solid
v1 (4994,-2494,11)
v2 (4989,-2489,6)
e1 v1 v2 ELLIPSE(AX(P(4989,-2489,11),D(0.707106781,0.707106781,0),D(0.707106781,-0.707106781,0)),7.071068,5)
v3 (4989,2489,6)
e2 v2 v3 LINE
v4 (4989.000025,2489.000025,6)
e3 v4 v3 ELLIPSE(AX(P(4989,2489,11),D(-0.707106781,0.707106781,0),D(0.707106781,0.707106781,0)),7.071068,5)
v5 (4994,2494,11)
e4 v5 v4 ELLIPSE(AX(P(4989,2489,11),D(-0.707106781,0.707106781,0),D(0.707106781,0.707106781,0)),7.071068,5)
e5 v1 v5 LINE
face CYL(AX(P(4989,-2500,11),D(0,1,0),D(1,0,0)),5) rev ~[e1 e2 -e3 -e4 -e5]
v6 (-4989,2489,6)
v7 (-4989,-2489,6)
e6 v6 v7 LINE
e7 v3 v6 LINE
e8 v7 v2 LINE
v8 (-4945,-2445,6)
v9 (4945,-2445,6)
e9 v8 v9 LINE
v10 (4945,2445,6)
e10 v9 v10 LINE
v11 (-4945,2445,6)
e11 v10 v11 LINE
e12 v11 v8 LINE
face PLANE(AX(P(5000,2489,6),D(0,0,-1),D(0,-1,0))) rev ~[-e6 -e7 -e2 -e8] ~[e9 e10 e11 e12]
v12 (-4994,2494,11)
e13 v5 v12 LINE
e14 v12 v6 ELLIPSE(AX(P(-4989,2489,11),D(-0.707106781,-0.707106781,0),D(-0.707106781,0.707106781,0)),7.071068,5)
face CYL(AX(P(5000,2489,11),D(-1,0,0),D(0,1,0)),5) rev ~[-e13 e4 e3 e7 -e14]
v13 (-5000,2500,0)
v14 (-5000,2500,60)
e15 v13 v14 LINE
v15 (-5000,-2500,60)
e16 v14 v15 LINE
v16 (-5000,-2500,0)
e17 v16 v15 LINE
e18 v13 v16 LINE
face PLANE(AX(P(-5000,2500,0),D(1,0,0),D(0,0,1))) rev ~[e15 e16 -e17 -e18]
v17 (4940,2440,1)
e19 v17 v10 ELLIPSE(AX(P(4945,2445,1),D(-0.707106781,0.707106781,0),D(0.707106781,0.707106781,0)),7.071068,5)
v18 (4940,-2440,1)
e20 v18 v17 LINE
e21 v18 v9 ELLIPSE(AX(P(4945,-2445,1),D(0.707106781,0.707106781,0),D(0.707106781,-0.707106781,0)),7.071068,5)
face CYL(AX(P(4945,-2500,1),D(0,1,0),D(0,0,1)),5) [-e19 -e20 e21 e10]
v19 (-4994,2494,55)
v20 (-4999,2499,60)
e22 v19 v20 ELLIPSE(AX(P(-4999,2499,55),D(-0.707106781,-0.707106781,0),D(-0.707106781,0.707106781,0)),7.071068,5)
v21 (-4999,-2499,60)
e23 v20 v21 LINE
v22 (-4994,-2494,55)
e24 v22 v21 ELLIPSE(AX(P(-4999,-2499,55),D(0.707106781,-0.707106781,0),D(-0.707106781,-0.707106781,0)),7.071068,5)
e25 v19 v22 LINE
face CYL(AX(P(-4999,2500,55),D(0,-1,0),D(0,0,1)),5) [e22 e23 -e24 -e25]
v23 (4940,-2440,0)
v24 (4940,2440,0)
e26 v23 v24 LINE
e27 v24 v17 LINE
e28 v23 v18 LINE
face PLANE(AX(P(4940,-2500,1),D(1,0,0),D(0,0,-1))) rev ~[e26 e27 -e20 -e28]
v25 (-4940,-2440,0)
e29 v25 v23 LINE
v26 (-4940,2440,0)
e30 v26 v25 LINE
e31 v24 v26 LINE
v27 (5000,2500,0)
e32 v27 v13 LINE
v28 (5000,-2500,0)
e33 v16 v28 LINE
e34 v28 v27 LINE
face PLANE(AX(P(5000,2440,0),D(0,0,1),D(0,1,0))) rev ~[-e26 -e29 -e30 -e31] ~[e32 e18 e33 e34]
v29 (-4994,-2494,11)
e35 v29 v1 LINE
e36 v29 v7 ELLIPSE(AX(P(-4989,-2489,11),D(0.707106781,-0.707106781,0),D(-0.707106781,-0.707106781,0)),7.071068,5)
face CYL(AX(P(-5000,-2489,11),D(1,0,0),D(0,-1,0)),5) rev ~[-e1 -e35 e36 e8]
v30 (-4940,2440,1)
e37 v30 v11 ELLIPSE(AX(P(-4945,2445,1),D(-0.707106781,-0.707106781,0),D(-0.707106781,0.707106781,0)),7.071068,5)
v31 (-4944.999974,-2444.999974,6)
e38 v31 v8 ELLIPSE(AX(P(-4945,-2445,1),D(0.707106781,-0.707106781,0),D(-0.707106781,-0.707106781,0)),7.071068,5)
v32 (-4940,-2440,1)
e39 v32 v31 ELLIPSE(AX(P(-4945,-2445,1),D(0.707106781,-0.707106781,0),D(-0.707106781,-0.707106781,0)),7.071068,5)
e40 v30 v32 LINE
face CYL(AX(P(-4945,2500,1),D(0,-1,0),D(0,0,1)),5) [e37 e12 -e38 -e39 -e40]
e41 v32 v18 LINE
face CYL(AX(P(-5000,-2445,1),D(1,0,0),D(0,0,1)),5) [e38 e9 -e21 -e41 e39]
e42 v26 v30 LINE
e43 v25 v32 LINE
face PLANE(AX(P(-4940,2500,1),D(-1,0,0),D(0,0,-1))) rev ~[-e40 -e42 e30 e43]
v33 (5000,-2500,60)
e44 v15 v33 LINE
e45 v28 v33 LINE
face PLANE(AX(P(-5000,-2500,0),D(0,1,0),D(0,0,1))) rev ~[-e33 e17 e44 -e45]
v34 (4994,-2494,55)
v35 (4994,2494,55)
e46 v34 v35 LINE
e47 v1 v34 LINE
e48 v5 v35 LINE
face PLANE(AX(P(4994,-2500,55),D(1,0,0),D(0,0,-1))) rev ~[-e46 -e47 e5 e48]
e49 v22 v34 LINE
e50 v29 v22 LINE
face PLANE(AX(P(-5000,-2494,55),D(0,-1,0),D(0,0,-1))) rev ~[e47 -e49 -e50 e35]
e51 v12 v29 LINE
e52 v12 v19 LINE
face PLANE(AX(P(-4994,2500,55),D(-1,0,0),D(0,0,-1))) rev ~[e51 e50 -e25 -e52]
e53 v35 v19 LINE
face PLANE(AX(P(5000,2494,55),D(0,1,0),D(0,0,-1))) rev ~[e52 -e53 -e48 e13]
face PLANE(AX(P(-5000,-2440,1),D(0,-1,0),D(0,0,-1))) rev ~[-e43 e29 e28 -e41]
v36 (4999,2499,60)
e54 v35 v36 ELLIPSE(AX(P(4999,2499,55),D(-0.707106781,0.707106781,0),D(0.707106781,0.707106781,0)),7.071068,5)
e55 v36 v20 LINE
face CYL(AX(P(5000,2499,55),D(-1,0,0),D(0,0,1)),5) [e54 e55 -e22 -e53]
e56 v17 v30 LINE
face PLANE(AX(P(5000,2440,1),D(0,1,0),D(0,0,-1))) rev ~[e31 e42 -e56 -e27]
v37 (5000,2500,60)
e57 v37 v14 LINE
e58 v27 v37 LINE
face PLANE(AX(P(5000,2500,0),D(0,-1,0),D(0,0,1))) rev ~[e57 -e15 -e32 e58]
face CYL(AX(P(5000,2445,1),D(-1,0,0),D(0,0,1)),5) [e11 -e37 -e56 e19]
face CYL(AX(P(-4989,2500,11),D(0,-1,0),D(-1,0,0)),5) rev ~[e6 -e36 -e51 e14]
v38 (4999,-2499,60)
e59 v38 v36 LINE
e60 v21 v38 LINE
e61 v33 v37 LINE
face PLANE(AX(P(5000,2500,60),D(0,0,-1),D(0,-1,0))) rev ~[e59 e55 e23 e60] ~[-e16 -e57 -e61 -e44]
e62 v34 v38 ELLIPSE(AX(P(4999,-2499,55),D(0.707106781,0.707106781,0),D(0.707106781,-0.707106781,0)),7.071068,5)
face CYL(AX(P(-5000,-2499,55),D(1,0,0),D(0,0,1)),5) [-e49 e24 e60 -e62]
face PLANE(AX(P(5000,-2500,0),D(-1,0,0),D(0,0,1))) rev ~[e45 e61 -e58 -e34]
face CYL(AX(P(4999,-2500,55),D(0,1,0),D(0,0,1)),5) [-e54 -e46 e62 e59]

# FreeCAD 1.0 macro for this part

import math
import FreeCAD as App
import Part
import Sketcher
from FreeCAD import Vector
Q = App.Units.Quantity

doc = App.newDocument("Part")
params = doc.addObject("Spreadsheet::Sheet", "Params")
for row, (alias, value) in enumerate([
    ("sketch1_radius", "5 mm"),
    ("sketch1_width", "60 mm"),
    ("sketch1_width2", "1 mm"),
    ("sketch2_width", "10000 mm"),
    ("sketch2_height", "5000 mm"),
], start=1):
    params.set(f"A{row}", alias)
    params.set(f"B{row}", "=" + value)
    params.setAlias(f"B{row}", alias)

body = doc.addObject("PartDesign::Body", "Body")

sketch1 = body.newObject("Sketcher::SketchObject", "Sketch")
sketch1.AttachmentSupport = (doc.getObject("YZ_Plane"), [""])
sketch1.MapMode = "FlatFace"
sketch1.addGeometry(Part.LineSegment(Vector(2440, 0, 0), Vector(2500, 0, 0)), False)
sketch1.addGeometry(Part.LineSegment(Vector(2500, 0, 0), Vector(2500, 60, 0)), False)
sketch1.addGeometry(Part.LineSegment(Vector(2500, 60, 0), Vector(2499, 60, 0)), False)
sketch1.addGeometry(Part.ArcOfCircle(Part.Circle(Vector(2499, 55, 0), Vector(0, 0, 1), 5), math.radians(90), math.radians(180)), False)
sketch1.addGeometry(Part.LineSegment(Vector(2494, 55, 0), Vector(2494, 11, 0)), False)
sketch1.addGeometry(Part.ArcOfCircle(Part.Circle(Vector(2489, 11, 0), Vector(0, 0, 1), 5), math.radians(-90), math.radians(0)), False)
sketch1.addGeometry(Part.LineSegment(Vector(2489, 6, 0), Vector(2445, 6, 0)), False)
sketch1.addGeometry(Part.ArcOfCircle(Part.Circle(Vector(2445, 1, 0), Vector(0, 0, 1), 5), math.radians(90), math.radians(180)), False)
sketch1.addGeometry(Part.LineSegment(Vector(2440, 1, 0), Vector(2440, 0, 0)), False)
sketch1.addConstraint(Sketcher.Constraint("Coincident", 0, 2, 1, 1))
sketch1.addConstraint(Sketcher.Constraint("Coincident", 1, 2, 2, 1))
sketch1.addConstraint(Sketcher.Constraint("Tangent", 2, 2, 3, 1))
sketch1.addConstraint(Sketcher.Constraint("Tangent", 3, 2, 4, 1))
sketch1.addConstraint(Sketcher.Constraint("Tangent", 4, 2, 5, 2))
sketch1.addConstraint(Sketcher.Constraint("Tangent", 5, 1, 6, 1))
sketch1.addConstraint(Sketcher.Constraint("Tangent", 6, 2, 7, 1))
sketch1.addConstraint(Sketcher.Constraint("Tangent", 7, 2, 8, 1))
sketch1.addConstraint(Sketcher.Constraint("Coincident", 8, 2, 0, 1))
sketch1.addConstraint(Sketcher.Constraint("Horizontal", 0))
sketch1.addConstraint(Sketcher.Constraint("Vertical", 1))
sketch1.addConstraint(Sketcher.Constraint("Horizontal", 2))
sketch1.addConstraint(Sketcher.Constraint("Vertical", 4))
sketch1.addConstraint(Sketcher.Constraint("Horizontal", 6))
sketch1.addConstraint(Sketcher.Constraint("Vertical", 8))
sketch1.addConstraint(Sketcher.Constraint("Equal", 3, 5))
sketch1.addConstraint(Sketcher.Constraint("Equal", 5, 7))
sketch1.addConstraint(Sketcher.Constraint("PointOnObject", 0, 2, -1))
sketch1.addConstraint(Sketcher.Constraint("Equal", 0, 1))
sketch1.addConstraint(Sketcher.Constraint("Equal", 6, 4))
sketch1.addConstraint(Sketcher.Constraint("Radius", 3, Q("5 mm")))
sketch1.addConstraint(Sketcher.Constraint("DistanceX", 0, 1, 0, 2, Q("60 mm")))
sketch1.addConstraint(Sketcher.Constraint("DistanceX", 2, 2, 2, 1, Q("1 mm")))
sketch1.addConstraint(Sketcher.Constraint("DistanceX", -1, 1, 3, 3, Q("2499 mm")))
sketch1.setExpression("Constraints[20]", "Params.sketch1_radius")
sketch1.setExpression("Constraints[21]", "Params.sketch1_width")
sketch1.setExpression("Constraints[22]", "Params.sketch1_width2")

sketch2 = body.newObject("Sketcher::SketchObject", "Sketch001")
sketch2.AttachmentSupport = (doc.getObject("XY_Plane"), [""])
sketch2.MapMode = "FlatFace"
sketch2.addGeometry(Part.LineSegment(Vector(5000, 2500, 0), Vector(-5000, 2500, 0)), False)
sketch2.addGeometry(Part.LineSegment(Vector(-5000, 2500, 0), Vector(-5000, -2500, 0)), False)
sketch2.addGeometry(Part.LineSegment(Vector(-5000, -2500, 0), Vector(5000, -2500, 0)), False)
sketch2.addGeometry(Part.LineSegment(Vector(5000, -2500, 0), Vector(5000, 2500, 0)), False)
sketch2.addConstraint(Sketcher.Constraint("Coincident", 0, 2, 1, 1))
sketch2.addConstraint(Sketcher.Constraint("Coincident", 1, 2, 2, 1))
sketch2.addConstraint(Sketcher.Constraint("Coincident", 2, 2, 3, 1))
sketch2.addConstraint(Sketcher.Constraint("Coincident", 3, 2, 0, 1))
sketch2.addConstraint(Sketcher.Constraint("Horizontal", 0))
sketch2.addConstraint(Sketcher.Constraint("Vertical", 1))
sketch2.addConstraint(Sketcher.Constraint("Horizontal", 2))
sketch2.addConstraint(Sketcher.Constraint("Vertical", 3))
sketch2.addConstraint(Sketcher.Constraint("Symmetric", 0, 2, 2, 2, -1, 1))
sketch2.addConstraint(Sketcher.Constraint("DistanceX", 0, 2, 0, 1, Q("10000 mm")))
sketch2.addConstraint(Sketcher.Constraint("DistanceY", 1, 2, 1, 1, Q("5000 mm")))
sketch2.setExpression("Constraints[9]", "Params.sketch2_width")
sketch2.setExpression("Constraints[10]", "Params.sketch2_height")
doc.recompute()

additivepipe = body.newObject("PartDesign::AdditivePipe", "AdditivePipe")
additivepipe.Profile = sketch1
additivepipe.Spine = (sketch2, ["Edge1", "Edge2", "Edge3", "Edge4"])
additivepipe.Transition = "Right corner"

doc.recompute()
